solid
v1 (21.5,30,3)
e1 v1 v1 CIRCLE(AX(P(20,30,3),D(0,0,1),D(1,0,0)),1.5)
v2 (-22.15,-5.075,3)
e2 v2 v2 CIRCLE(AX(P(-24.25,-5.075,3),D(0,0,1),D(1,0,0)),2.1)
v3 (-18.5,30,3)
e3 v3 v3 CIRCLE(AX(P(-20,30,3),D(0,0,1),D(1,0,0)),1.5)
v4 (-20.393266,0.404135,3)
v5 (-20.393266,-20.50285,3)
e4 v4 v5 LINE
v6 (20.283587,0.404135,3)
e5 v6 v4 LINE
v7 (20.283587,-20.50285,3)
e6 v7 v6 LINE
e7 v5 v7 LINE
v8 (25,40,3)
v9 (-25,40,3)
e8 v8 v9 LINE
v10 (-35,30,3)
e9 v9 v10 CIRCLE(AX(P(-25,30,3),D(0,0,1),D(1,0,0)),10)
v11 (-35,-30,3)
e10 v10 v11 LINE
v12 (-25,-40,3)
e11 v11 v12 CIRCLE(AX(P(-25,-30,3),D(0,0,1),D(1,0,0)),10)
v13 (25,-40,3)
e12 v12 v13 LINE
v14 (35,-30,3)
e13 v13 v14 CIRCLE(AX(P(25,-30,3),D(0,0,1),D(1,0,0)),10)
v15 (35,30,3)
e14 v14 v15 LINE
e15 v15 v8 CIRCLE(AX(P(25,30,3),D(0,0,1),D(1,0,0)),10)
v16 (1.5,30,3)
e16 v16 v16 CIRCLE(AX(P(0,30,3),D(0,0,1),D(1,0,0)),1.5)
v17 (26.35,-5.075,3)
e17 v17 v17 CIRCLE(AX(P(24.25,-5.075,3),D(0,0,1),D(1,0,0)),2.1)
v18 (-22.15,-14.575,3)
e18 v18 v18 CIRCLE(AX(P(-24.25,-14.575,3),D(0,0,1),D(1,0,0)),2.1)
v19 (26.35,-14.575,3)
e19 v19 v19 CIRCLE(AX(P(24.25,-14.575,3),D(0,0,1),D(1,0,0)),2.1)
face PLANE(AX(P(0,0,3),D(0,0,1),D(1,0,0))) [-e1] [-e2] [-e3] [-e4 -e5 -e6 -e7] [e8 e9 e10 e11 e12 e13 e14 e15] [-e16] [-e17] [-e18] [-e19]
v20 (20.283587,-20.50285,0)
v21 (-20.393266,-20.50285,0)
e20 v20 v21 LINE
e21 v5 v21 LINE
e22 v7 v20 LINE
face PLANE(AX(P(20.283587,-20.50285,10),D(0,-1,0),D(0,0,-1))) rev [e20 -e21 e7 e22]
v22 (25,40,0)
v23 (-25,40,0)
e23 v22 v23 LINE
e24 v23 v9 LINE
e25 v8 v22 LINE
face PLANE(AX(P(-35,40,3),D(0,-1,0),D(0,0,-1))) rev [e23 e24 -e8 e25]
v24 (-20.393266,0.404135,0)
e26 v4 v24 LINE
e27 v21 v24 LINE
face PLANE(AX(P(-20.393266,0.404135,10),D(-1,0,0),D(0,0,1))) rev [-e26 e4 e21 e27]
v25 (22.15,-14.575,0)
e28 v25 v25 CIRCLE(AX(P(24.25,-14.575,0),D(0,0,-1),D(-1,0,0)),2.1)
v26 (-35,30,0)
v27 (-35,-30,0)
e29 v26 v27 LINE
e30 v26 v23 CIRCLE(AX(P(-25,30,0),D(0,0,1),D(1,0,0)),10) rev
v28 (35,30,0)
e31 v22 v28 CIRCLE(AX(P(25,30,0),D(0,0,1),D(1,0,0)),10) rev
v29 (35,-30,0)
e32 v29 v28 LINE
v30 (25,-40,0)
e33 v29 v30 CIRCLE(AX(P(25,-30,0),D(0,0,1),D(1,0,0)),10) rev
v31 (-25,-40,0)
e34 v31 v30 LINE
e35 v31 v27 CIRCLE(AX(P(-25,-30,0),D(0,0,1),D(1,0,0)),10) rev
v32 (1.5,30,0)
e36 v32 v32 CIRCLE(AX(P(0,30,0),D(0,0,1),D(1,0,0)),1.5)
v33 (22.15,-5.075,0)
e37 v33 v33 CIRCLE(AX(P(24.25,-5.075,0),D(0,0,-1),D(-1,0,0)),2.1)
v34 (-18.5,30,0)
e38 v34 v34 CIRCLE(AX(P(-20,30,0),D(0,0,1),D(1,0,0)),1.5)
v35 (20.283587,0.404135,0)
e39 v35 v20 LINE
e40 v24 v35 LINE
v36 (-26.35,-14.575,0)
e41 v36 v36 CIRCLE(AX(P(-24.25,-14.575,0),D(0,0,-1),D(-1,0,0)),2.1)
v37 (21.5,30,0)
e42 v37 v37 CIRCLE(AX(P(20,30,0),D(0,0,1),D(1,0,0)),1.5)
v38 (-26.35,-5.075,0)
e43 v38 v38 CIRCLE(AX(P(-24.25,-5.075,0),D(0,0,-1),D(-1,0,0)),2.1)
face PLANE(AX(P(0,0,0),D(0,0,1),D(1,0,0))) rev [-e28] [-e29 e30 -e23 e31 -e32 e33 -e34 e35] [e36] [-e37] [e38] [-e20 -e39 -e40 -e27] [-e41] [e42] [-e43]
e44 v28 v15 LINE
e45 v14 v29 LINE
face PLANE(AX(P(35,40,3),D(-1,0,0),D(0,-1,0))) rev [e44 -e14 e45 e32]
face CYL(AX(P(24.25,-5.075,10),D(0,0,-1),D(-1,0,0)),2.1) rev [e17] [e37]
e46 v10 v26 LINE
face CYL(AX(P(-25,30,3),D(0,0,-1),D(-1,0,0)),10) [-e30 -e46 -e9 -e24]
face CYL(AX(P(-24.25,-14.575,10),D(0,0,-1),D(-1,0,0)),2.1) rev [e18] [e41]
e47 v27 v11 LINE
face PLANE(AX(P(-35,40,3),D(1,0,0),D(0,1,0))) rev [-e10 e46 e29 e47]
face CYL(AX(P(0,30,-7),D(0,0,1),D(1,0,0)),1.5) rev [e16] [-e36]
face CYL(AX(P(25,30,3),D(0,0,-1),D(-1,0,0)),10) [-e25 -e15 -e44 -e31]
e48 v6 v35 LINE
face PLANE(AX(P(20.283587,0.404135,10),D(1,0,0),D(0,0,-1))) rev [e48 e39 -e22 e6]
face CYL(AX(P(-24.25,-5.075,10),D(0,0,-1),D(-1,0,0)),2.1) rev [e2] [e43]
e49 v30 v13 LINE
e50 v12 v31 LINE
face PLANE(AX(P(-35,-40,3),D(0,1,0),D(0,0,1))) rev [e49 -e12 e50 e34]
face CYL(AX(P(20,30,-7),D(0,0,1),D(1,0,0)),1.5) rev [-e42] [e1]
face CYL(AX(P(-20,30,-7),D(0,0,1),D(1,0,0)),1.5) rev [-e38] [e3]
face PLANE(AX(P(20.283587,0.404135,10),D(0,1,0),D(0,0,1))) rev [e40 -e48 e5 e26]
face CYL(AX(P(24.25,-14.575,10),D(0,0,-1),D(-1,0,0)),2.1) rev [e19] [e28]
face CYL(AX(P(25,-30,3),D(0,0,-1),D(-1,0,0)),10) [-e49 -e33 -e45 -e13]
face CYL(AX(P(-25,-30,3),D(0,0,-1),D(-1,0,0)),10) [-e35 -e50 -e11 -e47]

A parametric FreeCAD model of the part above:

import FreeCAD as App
import Part
import Sketcher

V = App.Vector


def edges_at(feature, points):
    """Names of the edges that pass closest to the given points."""
    edges = feature.Shape.Edges
    near = lambda p: min(range(len(edges)), key=lambda i: edges[i].distToShape(Part.Vertex(*p))[0])
    return sorted({f"Edge{near(p) + 1}" for p in points})


def add_polygon(sketch, points):
    """Adds a closed chain of lines whose ends are joined by coincident constraints."""
    first, n = sketch.GeometryCount, len(points)
    for a, b in zip(points, points[1:] + points[:1]):
        sketch.addGeometry(Part.LineSegment(App.Vector(*a, 0), App.Vector(*b, 0)), False)
    for i in range(n):
        sketch.addConstraint(Sketcher.Constraint("Coincident", first + i, 2, first + (i + 1) % n, 1))

doc = App.newDocument("Part")
params = doc.addObject("Spreadsheet::Sheet", "Params")
for row, (alias, value) in enumerate([
    ("sketch1_width", "70 mm"),
    ("sketch1_height", "80 mm"),
    ("pad1_length", "3 mm"),
    ("sketch2_diameter", "4.2 mm"),
    ("pocket1_length", "10 mm"),
    ("sketch3_diameter", "3 mm"),
    ("pocket2_length", "10 mm"),
    ("fillet_radius", "10 mm"),
], start=1):
    params.set(f"A{row}", alias)
    params.set(f"B{row}", "=" + value)
    params.setAlias(f"B{row}", alias)

body = doc.addObject("PartDesign::Body", "Body")

sketch1 = doc.addObject("Sketcher::SketchObject", "Sketch")
body.addObject(sketch1)
sketch1.AttachmentSupport = (doc.XY_Plane, [""])
sketch1.MapMode = "FlatFace"
add_polygon(sketch1, [(-35, 40), (-35, -40), (35, -40), (35, 40)])
sketch1.addConstraint([
    Sketcher.Constraint("Vertical", 0),
    Sketcher.Constraint("Horizontal", 1),
    Sketcher.Constraint("Vertical", 2),
    Sketcher.Constraint("Horizontal", 3),
    Sketcher.Constraint("Symmetric", 0, 2, 2, 2, -1, 1),
    Sketcher.Constraint("DistanceX", 1, 1, 1, 2, 70.0),
    Sketcher.Constraint("DistanceY", 0, 2, 0, 1, 80.0),
])
sketch1.setExpression("Constraints[9]", "Params.sketch1_width")
sketch1.setExpression("Constraints[10]", "Params.sketch1_height")
pad1 = doc.addObject("PartDesign::Pad", "Pad")
body.addObject(pad1)
pad1.Profile = sketch1
pad1.setExpression("Length", "Params.pad1_length")

sketch2 = doc.addObject("Sketcher::SketchObject", "Sketch001")
body.addObject(sketch2)
sketch2.AttachmentSupport = (doc.XY_Plane, [""])
sketch2.MapMode = "FlatFace"
sketch2.addGeometry(Part.Circle(V(-24.25, -14.575, 0), V(0, 0, 1), 2.1), False)
sketch2.addGeometry(Part.Circle(V(-24.25, -5.075, 0), V(0, 0, 1), 2.1), False)
sketch2.addGeometry(Part.Circle(V(24.25, -14.575, 0), V(0, 0, 1), 2.1), False)
sketch2.addGeometry(Part.Circle(V(24.25, -5.075, 0), V(0, 0, 1), 2.1), False)
add_polygon(sketch2, [(20.283587, 0.404135), (20.283587, -20.50285), (-20.393266, -20.50285), (-20.393266, 0.404135)])
sketch2.addConstraint([
    Sketcher.Constraint("Vertical", 4),
    Sketcher.Constraint("Horizontal", 5),
    Sketcher.Constraint("Vertical", 6),
    Sketcher.Constraint("Horizontal", 7),
    Sketcher.Constraint("Equal", 0, 1),
    Sketcher.Constraint("Equal", 1, 2),
    Sketcher.Constraint("Equal", 2, 3),
    Sketcher.Constraint("Symmetric", 0, 3, 2, 3, -2),
    Sketcher.Constraint("Symmetric", 1, 3, 3, 3, -2),
    Sketcher.Constraint("Vertical", 0, 3, 1, 3),
    Sketcher.Constraint("Diameter", 0, 4.2),
    Sketcher.Constraint("DistanceY", 0, 3, 1, 3, 9.5),
    Sketcher.Constraint("DistanceX", 0, 3, 2, 3, 48.5),
    Sketcher.Constraint("DistanceY", 0, 3, -1, 1, 14.575),
    Sketcher.Constraint("DistanceX", 5, 2, 5, 1, 40.676852),
    Sketcher.Constraint("DistanceY", 4, 2, 4, 1, 20.906985),
    Sketcher.Constraint("DistanceY", 4, 2, -1, 1, 20.50285),
    Sketcher.Constraint("DistanceX", -1, 1, 4, 2, 20.283587),
])
sketch2.setExpression("Constraints[14]", "Params.sketch2_diameter")
pocket1 = doc.addObject("PartDesign::Pocket", "Pocket")
body.addObject(pocket1)
pocket1.Profile = sketch2
pocket1.setExpression("Length", "Params.pocket1_length")
pocket1.Reversed = True

sketch3 = doc.addObject("Sketcher::SketchObject", "Sketch002")
body.addObject(sketch3)
sketch3.AttachmentSupport = (doc.XY_Plane, [""])
sketch3.MapMode = "FlatFace"
sketch3.AttachmentOffset = App.Placement(V(0, 0, 3), App.Rotation())
sketch3.addGeometry([
    Part.Circle(V(-20, 30, 0), V(0, 0, 1), 1.5),
    Part.Circle(V(0, 30, 0), V(0, 0, 1), 1.5),
    Part.Circle(V(20, 30, 0), V(0, 0, 1), 1.5),
], False)
sketch3.addConstraint([
    Sketcher.Constraint("Equal", 0, 1),
    Sketcher.Constraint("Equal", 1, 2),
    Sketcher.Constraint("Symmetric", 0, 3, 2, 3, -2),
    Sketcher.Constraint("PointOnObject", 1, 3, -2),
    Sketcher.Constraint("Horizontal", 0, 3, 1, 3),
    Sketcher.Constraint("Diameter", 0, 3.0),
    Sketcher.Constraint("DistanceX", 0, 3, -1, 1, 20.0),
    Sketcher.Constraint("DistanceY", -1, 1, 0, 3, 30.0),
])
sketch3.setExpression("Constraints[5]", "Params.sketch3_diameter")
pocket2 = doc.addObject("PartDesign::Pocket", "Pocket001")
body.addObject(pocket2)
pocket2.Profile = sketch3
pocket2.setExpression("Length", "Params.pocket2_length")
doc.recompute()

fillet = doc.addObject("PartDesign::Fillet", "Fillet")
body.addObject(fillet)
fillet.Base = (pocket2, edges_at(pocket2, [
    (35, -40, 1.5),
    (-35, -40, 1.5),
    (-35, 40, 1.5),
    (35, 40, 1.5),
]))
fillet.setExpression("Radius", "Params.fillet_radius")

doc.recompute()
